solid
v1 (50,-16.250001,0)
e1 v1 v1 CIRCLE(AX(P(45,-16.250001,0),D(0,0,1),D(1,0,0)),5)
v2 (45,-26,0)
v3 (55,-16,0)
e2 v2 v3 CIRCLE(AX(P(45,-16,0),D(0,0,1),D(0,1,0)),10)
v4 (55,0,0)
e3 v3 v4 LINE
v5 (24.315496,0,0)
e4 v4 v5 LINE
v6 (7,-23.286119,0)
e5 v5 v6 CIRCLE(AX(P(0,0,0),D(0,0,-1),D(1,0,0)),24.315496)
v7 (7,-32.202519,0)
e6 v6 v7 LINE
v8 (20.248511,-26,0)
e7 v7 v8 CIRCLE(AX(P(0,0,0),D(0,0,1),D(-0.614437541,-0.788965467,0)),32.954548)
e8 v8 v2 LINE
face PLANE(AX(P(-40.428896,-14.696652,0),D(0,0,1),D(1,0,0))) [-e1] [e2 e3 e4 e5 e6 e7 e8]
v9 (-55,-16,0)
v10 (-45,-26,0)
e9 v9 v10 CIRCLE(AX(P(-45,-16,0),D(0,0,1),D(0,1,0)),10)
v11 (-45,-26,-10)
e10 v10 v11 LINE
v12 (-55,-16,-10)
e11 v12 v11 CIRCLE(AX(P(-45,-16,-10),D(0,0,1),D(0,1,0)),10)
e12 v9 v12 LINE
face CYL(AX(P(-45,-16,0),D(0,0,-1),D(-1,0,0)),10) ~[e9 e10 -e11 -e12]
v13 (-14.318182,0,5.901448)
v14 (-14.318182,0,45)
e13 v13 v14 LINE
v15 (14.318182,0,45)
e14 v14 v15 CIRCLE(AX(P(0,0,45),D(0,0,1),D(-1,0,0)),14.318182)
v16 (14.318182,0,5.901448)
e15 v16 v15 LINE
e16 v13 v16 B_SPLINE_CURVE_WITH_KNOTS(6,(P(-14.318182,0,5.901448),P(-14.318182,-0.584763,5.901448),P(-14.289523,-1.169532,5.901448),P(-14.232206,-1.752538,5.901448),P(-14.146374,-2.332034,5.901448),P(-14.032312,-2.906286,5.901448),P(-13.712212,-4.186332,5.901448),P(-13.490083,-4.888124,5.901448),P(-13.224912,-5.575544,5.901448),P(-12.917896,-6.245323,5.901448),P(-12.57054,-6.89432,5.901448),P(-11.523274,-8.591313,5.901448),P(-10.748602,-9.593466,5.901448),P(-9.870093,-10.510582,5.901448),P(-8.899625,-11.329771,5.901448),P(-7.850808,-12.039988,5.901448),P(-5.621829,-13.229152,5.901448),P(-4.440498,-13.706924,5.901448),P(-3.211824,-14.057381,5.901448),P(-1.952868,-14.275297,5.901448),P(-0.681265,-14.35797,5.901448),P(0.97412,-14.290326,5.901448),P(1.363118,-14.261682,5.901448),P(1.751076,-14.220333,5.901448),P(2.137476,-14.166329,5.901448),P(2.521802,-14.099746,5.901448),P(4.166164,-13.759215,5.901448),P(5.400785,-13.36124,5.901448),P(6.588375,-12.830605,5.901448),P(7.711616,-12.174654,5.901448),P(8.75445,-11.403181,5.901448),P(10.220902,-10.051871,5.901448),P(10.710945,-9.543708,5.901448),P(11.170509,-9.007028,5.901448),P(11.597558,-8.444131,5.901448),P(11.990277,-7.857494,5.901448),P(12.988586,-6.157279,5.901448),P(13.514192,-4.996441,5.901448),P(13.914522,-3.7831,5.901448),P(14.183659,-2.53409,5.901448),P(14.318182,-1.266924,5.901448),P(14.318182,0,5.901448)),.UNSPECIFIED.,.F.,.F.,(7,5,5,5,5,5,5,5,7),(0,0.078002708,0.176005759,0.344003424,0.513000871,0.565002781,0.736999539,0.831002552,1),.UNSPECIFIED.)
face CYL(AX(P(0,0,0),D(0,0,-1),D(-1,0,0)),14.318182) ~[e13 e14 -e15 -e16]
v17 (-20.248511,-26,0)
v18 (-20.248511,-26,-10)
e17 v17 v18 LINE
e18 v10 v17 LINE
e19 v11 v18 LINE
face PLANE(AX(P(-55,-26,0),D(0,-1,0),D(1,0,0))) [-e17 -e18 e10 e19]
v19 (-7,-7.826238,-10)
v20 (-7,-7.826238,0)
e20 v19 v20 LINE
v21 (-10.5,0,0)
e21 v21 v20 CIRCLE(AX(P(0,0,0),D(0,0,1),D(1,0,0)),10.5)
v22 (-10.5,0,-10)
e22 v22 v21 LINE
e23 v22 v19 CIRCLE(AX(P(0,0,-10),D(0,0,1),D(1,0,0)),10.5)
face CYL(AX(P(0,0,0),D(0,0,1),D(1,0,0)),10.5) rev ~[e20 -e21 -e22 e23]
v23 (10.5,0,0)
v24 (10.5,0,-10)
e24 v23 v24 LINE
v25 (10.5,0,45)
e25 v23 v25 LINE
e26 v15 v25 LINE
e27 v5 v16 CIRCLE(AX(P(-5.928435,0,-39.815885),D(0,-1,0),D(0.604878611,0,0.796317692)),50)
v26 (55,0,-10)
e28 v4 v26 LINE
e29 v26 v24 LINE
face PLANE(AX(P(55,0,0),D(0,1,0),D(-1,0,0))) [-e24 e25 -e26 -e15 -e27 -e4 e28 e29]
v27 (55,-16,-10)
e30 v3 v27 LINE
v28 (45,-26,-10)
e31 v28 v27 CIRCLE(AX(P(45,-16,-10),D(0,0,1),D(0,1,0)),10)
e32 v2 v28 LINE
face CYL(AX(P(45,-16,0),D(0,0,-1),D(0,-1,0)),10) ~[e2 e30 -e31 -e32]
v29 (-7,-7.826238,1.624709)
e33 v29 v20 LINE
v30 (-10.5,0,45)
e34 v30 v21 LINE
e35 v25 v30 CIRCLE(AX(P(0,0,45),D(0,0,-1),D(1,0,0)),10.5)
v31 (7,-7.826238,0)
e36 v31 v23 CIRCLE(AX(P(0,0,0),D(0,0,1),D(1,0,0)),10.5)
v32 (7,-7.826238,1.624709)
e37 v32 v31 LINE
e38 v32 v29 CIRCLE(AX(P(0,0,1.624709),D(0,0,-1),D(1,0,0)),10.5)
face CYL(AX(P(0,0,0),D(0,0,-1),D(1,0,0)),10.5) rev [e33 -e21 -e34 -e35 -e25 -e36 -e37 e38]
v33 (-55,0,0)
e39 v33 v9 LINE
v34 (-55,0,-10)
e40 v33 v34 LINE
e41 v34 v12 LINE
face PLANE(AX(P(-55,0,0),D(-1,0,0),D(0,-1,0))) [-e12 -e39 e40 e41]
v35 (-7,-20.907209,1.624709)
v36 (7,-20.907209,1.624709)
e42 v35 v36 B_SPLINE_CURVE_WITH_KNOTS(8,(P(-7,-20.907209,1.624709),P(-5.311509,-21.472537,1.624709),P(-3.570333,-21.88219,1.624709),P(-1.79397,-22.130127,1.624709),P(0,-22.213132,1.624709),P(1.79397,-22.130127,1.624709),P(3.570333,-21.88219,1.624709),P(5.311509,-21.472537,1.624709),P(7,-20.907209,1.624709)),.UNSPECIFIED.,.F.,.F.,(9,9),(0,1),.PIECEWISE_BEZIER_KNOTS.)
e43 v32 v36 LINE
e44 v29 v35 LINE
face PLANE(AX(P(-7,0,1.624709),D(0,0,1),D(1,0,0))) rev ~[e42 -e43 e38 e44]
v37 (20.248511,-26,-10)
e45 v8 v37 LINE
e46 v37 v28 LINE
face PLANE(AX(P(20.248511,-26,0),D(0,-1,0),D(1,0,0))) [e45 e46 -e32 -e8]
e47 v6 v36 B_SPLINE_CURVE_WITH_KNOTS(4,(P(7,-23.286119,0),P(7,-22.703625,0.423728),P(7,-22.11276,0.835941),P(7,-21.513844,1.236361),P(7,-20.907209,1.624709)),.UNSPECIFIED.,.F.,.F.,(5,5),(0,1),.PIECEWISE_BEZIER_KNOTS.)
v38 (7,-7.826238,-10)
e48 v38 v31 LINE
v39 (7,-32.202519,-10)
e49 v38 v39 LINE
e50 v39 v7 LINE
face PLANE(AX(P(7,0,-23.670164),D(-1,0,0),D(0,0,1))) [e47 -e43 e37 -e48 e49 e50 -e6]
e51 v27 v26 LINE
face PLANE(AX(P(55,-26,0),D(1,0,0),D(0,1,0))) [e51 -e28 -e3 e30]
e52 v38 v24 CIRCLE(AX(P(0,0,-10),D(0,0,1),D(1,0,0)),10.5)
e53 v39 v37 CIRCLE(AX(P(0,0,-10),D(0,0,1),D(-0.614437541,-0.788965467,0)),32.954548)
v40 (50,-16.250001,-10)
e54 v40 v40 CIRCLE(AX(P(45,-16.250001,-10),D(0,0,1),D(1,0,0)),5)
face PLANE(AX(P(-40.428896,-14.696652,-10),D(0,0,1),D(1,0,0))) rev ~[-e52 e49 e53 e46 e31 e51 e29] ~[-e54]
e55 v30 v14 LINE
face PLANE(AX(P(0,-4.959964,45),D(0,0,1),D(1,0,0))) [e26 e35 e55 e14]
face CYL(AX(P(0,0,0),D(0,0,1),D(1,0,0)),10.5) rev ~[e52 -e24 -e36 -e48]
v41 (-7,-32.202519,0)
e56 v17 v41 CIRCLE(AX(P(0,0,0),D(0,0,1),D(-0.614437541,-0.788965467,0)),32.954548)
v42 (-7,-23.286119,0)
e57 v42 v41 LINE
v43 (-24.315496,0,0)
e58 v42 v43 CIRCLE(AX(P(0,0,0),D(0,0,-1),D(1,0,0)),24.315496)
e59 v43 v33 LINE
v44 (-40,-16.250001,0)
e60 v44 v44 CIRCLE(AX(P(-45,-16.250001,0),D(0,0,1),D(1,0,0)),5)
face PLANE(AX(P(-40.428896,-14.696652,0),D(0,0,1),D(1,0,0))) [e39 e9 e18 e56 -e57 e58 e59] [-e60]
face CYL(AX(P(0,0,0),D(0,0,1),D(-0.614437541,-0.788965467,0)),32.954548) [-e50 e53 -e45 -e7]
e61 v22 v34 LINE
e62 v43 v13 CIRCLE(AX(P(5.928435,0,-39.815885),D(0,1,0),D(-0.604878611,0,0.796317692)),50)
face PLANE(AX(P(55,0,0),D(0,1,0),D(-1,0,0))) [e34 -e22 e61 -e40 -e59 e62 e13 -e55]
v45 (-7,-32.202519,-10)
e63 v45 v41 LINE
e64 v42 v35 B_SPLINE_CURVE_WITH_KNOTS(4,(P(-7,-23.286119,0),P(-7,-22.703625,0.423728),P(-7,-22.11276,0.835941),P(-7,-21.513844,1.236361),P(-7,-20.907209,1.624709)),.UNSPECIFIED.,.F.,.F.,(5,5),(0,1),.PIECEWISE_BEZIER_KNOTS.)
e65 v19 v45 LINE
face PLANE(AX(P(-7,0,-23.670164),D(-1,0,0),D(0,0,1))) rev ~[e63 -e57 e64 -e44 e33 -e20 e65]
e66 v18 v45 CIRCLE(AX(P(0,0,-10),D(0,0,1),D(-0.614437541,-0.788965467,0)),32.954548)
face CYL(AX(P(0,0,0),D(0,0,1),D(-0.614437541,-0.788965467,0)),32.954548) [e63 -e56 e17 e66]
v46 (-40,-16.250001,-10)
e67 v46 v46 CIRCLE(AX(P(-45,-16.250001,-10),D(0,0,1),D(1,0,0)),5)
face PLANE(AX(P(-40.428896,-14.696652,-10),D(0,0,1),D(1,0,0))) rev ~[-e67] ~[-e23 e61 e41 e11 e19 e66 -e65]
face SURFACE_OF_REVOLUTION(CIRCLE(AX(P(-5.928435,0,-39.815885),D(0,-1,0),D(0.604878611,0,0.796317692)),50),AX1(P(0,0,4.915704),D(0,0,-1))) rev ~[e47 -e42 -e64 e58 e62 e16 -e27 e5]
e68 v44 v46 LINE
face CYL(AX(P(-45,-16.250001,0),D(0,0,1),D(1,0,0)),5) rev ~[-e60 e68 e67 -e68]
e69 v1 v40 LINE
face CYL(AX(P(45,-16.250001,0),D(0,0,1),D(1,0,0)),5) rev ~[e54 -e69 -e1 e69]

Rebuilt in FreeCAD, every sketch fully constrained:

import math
import FreeCAD as App
import Part
import Sketcher
from FreeCAD import Vector


def edges_at(feature, points):
    """Names of the edges that pass closest to the given points."""
    edges = feature.Shape.Edges
    near = lambda p: min(range(len(edges)), key=lambda i: edges[i].distToShape(Part.Vertex(*p))[0])
    return sorted({f"Edge{near(p) + 1}" for p in points})


def add_polygon(sketch, points):
    """Adds a closed chain of lines whose ends are joined by coincident constraints."""
    first, n = sketch.GeometryCount, len(points)
    for a, b in zip(points, points[1:] + points[:1]):
        sketch.addGeometry(Part.LineSegment(App.Vector(*a, 0), App.Vector(*b, 0)), False)
    for i in range(n):
        sketch.addConstraint(Sketcher.Constraint("Coincident", first + i, 2, first + (i + 1) % n, 1))

doc = App.newDocument("Part")
body = doc.addObject("PartDesign::Body", "Body")

# Sketch on XY plane
sketch1 = body.newObject("Sketcher::SketchObject", "Sketch")
sketch1.AttachmentSupport = (doc.getObject("XY_Plane"), [""])
sketch1.MapMode = "FlatFace"
sketch1.addGeometry([
    Part.LineSegment(Vector(-55, 0, 0), Vector(-55, -26, 0)),  # 0
    Part.LineSegment(Vector(-55, -26, 0), Vector(-20, -26, 0)),  # 1
    Part.ArcOfCircle(Part.Circle(Vector(0, 0, 0), Vector(0, 0, 1), 33), math.radians(-128), math.radians(-52)),  # 2
    Part.LineSegment(Vector(20, -26, 0), Vector(55, -26, 0)),  # 3
    Part.LineSegment(Vector(55, -26, 0), Vector(55, 0, 0)),  # 4
    Part.LineSegment(Vector(55, 0, 0), Vector(-55, 0, 0)),  # 5
], False)
sketch1.addConstraint([
    Sketcher.Constraint("Coincident", 0, 2, 1, 1),
    Sketcher.Constraint("Coincident", 1, 2, 2, 1),
    Sketcher.Constraint("Coincident", 2, 2, 3, 1),
    Sketcher.Constraint("Coincident", 3, 2, 4, 1),
    Sketcher.Constraint("Coincident", 4, 2, 5, 1),
    Sketcher.Constraint("Coincident", 5, 2, 0, 1),
    Sketcher.Constraint("Vertical", 0),
    Sketcher.Constraint("Horizontal", 1),
    Sketcher.Constraint("Horizontal", 3),
    Sketcher.Constraint("Vertical", 4),
    Sketcher.Constraint("Horizontal", 5),
    Sketcher.Constraint("Coincident", 2, 3, -1, 1),
    Sketcher.Constraint("Symmetric", 4, 2, 5, 2, -1, 1),
    Sketcher.Constraint("Horizontal", 1, 2, 2, 2),
    Sketcher.Constraint("DistanceX", 5, 2, 5, 1, 110.0),
    Sketcher.Constraint("DistanceY", 0, 2, 0, 1, 26.0),
    Sketcher.Constraint("Radius", 2, 32.954548),
])
pad1 = body.newObject("PartDesign::Pad", "Pad")
pad1.Profile = sketch1
pad1.Length = 10
pad1.Reversed = True
doc.recompute()

fillet = body.newObject("PartDesign::Fillet", "Fillet")
fillet.Base = (pad1, edges_at(pad1, [(-55, -26, -5), (55, -26, -5)]))
fillet.Radius = 10

# Sketch on XY plane
sketch2 = body.newObject("Sketcher::SketchObject", "Sketch001")
sketch2.AttachmentSupport = (doc.getObject("XY_Plane"), [""])
sketch2.MapMode = "FlatFace"
sketch2.addGeometry([
    Part.Circle(Vector(-45, -16, 0), Vector(0, 0, 1), 5),
    Part.Circle(Vector(45, -16, 0), Vector(0, 0, 1), 5),
], False)
sketch2.addConstraint([
    Sketcher.Constraint("Equal", 0, 1),
    Sketcher.Constraint("Symmetric", 0, 3, 1, 3, -2),
    Sketcher.Constraint("Diameter", 0, 10.0),
    Sketcher.Constraint("DistanceX", 0, 3, -1, 1, 45.0),
    Sketcher.Constraint("DistanceY", 0, 3, -1, 1, 16.250001),
])
pocket1 = body.newObject("PartDesign::Pocket", "Pocket")
pocket1.Profile = sketch2
pocket1.Length = 25

# Sketch on XZ plane
sketch3 = body.newObject("Sketcher::SketchObject", "Sketch002")
sketch3.AttachmentSupport = (doc.getObject("XZ_Plane"), [""])
sketch3.MapMode = "FlatFace"
sketch3.addGeometry([
    Part.LineSegment(Vector(0, 10, 0), Vector(0, 0, 0)),
    Part.LineSegment(Vector(0, 0, 0), Vector(24, 0, 0)),
    Part.ArcOfCircle(Part.Circle(Vector(-6, -40, 0), Vector(0, 0, 1), 50), math.radians(53), math.radians(83)),
], False)
sketch3.addConstraint([
    Sketcher.Constraint("Coincident", 0, 2, 1, 1),
    Sketcher.Constraint("Coincident", 1, 2, 2, 1),
    Sketcher.Constraint("Coincident", 2, 2, 0, 1),
    Sketcher.Constraint("Vertical", 0),
    Sketcher.Constraint("Horizontal", 1),
    Sketcher.Constraint("Coincident", 0, 2, -1, 1),
    Sketcher.Constraint("Radius", 2, 50.0),
    Sketcher.Constraint("DistanceY", 0, 2, 0, 1, 9.831408),
    Sketcher.Constraint("DistanceX", 1, 1, 1, 2, 24.315496),
])
revolution = body.newObject("PartDesign::Revolution", "Revolution")
revolution.Profile = sketch3
revolution.ReferenceAxis = (sketch3, ["V_Axis"])
revolution.Angle = 180
revolution.Reversed = True

# Sketch on XY plane
sketch4 = body.newObject("Sketcher::SketchObject", "Sketch003")
sketch4.AttachmentSupport = (doc.getObject("XY_Plane"), [""])
sketch4.MapMode = "FlatFace"
sketch4.addGeometry([
    Part.ArcOfCircle(Part.Circle(Vector(0, 0, 0), Vector(0, 0, 1), 14), math.radians(180), math.radians(360)),
    Part.LineSegment(Vector(14, 0, 0), Vector(-14, 0, 0)),
], False)
sketch4.addConstraint([
    Sketcher.Constraint("Coincident", 0, 1, 1, 2),
    Sketcher.Constraint("Coincident", 1, 1, 0, 2),
    Sketcher.Constraint("Horizontal", 1),
    Sketcher.Constraint("Coincident", 0, 3, -1, 1),
    Sketcher.Constraint("PointOnObject", 0, 1, -1),
    Sketcher.Constraint("Radius", 0, 14.318182),
])
pad2 = body.newObject("PartDesign::Pad", "Pad001")
pad2.Profile = sketch4
pad2.Length = 45

# Sketch on XY plane
sketch5 = body.newObject("Sketcher::SketchObject", "Sketch004")
sketch5.AttachmentSupport = (doc.getObject("XY_Plane"), [""])
sketch5.MapMode = "FlatFace"
sketch5.addGeometry(Part.Circle(Vector(0, 0, 0), Vector(0, 0, 1), 10), False)
sketch5.addConstraint([
    Sketcher.Constraint("Coincident", 0, 3, -1, 1),
    Sketcher.Constraint("Diameter", 0, 21.0),
])
pocket2 = body.newObject("PartDesign::Pocket", "Pocket001")
pocket2.Profile = sketch5
pocket2.Type = "ThroughAll"
pocket2.Midplane = True

# Sketch on XZ plane
sketch6 = body.newObject("Sketcher::SketchObject", "Sketch005")
sketch6.AttachmentSupport = (doc.getObject("XZ_Plane"), [""])
sketch6.MapMode = "FlatFace"
add_polygon(sketch6, [(-7, 2), (-7, -24), (7, -24), (7, 2)])  # lines 0-3
sketch6.addConstraint([
    Sketcher.Constraint("Vertical", 0),
    Sketcher.Constraint("Horizontal", 1),
    Sketcher.Constraint("Vertical", 2),
    Sketcher.Constraint("Horizontal", 3),
    Sketcher.Constraint("DistanceX", 1, 1, 1, 2, 14.0),
    Sketcher.Constraint("DistanceX", 0, 2, -1, 1, 7.0),
    Sketcher.Constraint("DistanceY", 0, 2, 0, 1, 25.294873),
    Sketcher.Constraint("DistanceY", -1, 1, 2, 2, 1.624709),
])
pocket3 = body.newObject("PartDesign::Pocket", "Pocket002")
pocket3.Profile = sketch6
pocket3.Length = 50
pocket3.Reversed = True

doc.recompute()
